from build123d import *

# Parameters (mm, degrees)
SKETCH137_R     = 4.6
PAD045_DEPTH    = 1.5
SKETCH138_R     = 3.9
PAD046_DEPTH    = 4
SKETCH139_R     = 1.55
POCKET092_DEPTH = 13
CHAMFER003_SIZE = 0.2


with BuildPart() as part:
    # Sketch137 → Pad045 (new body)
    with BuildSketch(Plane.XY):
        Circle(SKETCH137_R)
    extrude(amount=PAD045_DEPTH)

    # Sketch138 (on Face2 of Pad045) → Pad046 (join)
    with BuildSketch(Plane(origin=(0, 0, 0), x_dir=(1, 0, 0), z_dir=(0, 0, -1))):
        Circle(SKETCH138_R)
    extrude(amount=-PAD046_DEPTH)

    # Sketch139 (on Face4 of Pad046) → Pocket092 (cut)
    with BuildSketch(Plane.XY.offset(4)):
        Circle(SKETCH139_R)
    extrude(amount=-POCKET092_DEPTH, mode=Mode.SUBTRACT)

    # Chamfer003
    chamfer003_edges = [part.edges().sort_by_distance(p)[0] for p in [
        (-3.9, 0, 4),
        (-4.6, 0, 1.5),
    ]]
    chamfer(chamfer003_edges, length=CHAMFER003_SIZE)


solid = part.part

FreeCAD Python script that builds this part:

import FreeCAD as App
import Part
import Sketcher


def edges_at(feature, points):
    """Names of the edges that pass closest to the given points."""
    edges = feature.Shape.Edges
    near = lambda p: min(range(len(edges)), key=lambda i: edges[i].distToShape(Part.Vertex(*p))[0])
    return sorted({f"Edge{near(p) + 1}" for p in points})

doc = App.newDocument("Part")
params = doc.addObject("Spreadsheet::Sheet", "Params")
for row, (alias, value) in enumerate([
    ("sketch1_diameter", "9.2 mm"),
    ("pad1_length", "1.5 mm"),
    ("sketch2_diameter", "7.8 mm"),
    ("pad2_length", "4 mm"),
    ("sketch3_diameter", "3.1 mm"),
    ("pocket1_length", "13 mm"),
    ("chamfer_size", "0.2 mm"),
], start=1):
    params.set(f"A{row}", alias)
    params.set(f"B{row}", "=" + value)
    params.setAlias(f"B{row}", alias)

body = doc.addObject("PartDesign::Body", "Body")

sketch1 = body.newObject("Sketcher::SketchObject", "Sketch")
sketch1.AttachmentSupport = (doc.getObject("XY_Plane"), [""])
sketch1.MapMode = "FlatFace"
sketch1.addGeometry(Part.Circle(App.Vector(0, 0, 0), App.Vector(0, 0, 1), 4.6), False)
sketch1.addConstraint(Sketcher.Constraint("Coincident", 0, 3, -1, 1))
sketch1.addConstraint(Sketcher.Constraint("Diameter", 0, 9.2))
sketch1.setExpression("Constraints[1]", "Params.sketch1_diameter")
pad1 = body.newObject("PartDesign::Pad", "Pad")
pad1.Profile = sketch1
pad1.setExpression("Length", "Params.pad1_length")

sketch2 = body.newObject("Sketcher::SketchObject", "Sketch001")
sketch2.AttachmentSupport = (doc.getObject("XY_Plane"), [""])
sketch2.MapMode = "FlatFace"
sketch2.addGeometry(Part.Circle(App.Vector(0, 0, 0), App.Vector(0, 0, 1), 3.9), False)
sketch2.addConstraint(Sketcher.Constraint("Coincident", 0, 3, -1, 1))
sketch2.addConstraint(Sketcher.Constraint("Diameter", 0, 7.8))
sketch2.setExpression("Constraints[1]", "Params.sketch2_diameter")
pad2 = body.newObject("PartDesign::Pad", "Pad001")
pad2.Profile = sketch2
pad2.setExpression("Length", "Params.pad2_length")

sketch3 = body.newObject("Sketcher::SketchObject", "Sketch002")
sketch3.AttachmentSupport = (doc.getObject("XY_Plane"), [""])
sketch3.MapMode = "FlatFace"
sketch3.AttachmentOffset = App.Placement(App.Vector(0, 0, 4), App.Rotation())
sketch3.addGeometry(Part.Circle(App.Vector(0, 0, 0), App.Vector(0, 0, 1), 1.55), False)
sketch3.addConstraint(Sketcher.Constraint("Coincident", 0, 3, -1, 1))
sketch3.addConstraint(Sketcher.Constraint("Diameter", 0, 3.1))
sketch3.setExpression("Constraints[1]", "Params.sketch3_diameter")
pocket1 = body.newObject("PartDesign::Pocket", "Pocket")
pocket1.Profile = sketch3
pocket1.setExpression("Length", "Params.pocket1_length")
doc.recompute()

chamfer = body.newObject("PartDesign::Chamfer", "Chamfer")
chamfer.Base = (pocket1, edges_at(pocket1, [(-3.9, 0, 4), (-4.6, 0, 1.5)]))
chamfer.setExpression("Size", "Params.chamfer_size")

doc.recompute()
